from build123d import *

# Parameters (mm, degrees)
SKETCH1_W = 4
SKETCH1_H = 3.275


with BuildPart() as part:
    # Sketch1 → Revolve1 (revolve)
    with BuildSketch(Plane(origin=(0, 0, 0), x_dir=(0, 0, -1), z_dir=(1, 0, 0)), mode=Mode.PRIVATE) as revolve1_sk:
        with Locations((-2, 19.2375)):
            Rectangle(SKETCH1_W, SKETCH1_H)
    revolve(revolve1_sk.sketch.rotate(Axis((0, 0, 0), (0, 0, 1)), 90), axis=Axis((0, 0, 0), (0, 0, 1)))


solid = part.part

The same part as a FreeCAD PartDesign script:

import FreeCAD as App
import Part
import Sketcher
Q = App.Units.Quantity

doc = App.newDocument("Part")
body = doc.addObject("PartDesign::Body", "Body")

# Sketch on YZ plane
sketch1 = body.newObject("Sketcher::SketchObject", "Sketch")
sketch1.AttachmentSupport = (doc.getObject("YZ_Plane"), [""])
sketch1.MapMode = "FlatFace"
sketch1.addGeometry([
    Part.LineSegment(App.Vector(20.875, 4, 0), App.Vector(17.6, 4, 0)),
    Part.LineSegment(App.Vector(17.6, 4, 0), App.Vector(17.6, 0, 0)),
    Part.LineSegment(App.Vector(17.6, 0, 0), App.Vector(20.875, 0, 0)),
    Part.LineSegment(App.Vector(20.875, 0, 0), App.Vector(20.875, 4, 0)),
], False)
sketch1.addConstraint([
    Sketcher.Constraint("Coincident", 0, 2, 1, 1),
    Sketcher.Constraint("Coincident", 1, 2, 2, 1),
    Sketcher.Constraint("Coincident", 2, 2, 3, 1),
    Sketcher.Constraint("Coincident", 3, 2, 0, 1),
    Sketcher.Constraint("Horizontal", 0),
    Sketcher.Constraint("Vertical", 1),
    Sketcher.Constraint("Horizontal", 2),
    Sketcher.Constraint("Vertical", 3),
    Sketcher.Constraint("PointOnObject", 1, 2, -1),
    Sketcher.Constraint("DistanceY", 1, 2, 1, 1, Q("4 mm")),
    Sketcher.Constraint("DistanceX", -1, 1, 0, 2, Q("17.6 mm")),
    Sketcher.Constraint("DistanceX", 0, 2, 0, 1, Q("3.275 mm")),
])
revolution = body.newObject("PartDesign::Revolution", "Revolution")
revolution.Profile = sketch1
revolution.ReferenceAxis = (sketch1, ["V_Axis"])
revolution.Angle = 360

doc.recompute()
